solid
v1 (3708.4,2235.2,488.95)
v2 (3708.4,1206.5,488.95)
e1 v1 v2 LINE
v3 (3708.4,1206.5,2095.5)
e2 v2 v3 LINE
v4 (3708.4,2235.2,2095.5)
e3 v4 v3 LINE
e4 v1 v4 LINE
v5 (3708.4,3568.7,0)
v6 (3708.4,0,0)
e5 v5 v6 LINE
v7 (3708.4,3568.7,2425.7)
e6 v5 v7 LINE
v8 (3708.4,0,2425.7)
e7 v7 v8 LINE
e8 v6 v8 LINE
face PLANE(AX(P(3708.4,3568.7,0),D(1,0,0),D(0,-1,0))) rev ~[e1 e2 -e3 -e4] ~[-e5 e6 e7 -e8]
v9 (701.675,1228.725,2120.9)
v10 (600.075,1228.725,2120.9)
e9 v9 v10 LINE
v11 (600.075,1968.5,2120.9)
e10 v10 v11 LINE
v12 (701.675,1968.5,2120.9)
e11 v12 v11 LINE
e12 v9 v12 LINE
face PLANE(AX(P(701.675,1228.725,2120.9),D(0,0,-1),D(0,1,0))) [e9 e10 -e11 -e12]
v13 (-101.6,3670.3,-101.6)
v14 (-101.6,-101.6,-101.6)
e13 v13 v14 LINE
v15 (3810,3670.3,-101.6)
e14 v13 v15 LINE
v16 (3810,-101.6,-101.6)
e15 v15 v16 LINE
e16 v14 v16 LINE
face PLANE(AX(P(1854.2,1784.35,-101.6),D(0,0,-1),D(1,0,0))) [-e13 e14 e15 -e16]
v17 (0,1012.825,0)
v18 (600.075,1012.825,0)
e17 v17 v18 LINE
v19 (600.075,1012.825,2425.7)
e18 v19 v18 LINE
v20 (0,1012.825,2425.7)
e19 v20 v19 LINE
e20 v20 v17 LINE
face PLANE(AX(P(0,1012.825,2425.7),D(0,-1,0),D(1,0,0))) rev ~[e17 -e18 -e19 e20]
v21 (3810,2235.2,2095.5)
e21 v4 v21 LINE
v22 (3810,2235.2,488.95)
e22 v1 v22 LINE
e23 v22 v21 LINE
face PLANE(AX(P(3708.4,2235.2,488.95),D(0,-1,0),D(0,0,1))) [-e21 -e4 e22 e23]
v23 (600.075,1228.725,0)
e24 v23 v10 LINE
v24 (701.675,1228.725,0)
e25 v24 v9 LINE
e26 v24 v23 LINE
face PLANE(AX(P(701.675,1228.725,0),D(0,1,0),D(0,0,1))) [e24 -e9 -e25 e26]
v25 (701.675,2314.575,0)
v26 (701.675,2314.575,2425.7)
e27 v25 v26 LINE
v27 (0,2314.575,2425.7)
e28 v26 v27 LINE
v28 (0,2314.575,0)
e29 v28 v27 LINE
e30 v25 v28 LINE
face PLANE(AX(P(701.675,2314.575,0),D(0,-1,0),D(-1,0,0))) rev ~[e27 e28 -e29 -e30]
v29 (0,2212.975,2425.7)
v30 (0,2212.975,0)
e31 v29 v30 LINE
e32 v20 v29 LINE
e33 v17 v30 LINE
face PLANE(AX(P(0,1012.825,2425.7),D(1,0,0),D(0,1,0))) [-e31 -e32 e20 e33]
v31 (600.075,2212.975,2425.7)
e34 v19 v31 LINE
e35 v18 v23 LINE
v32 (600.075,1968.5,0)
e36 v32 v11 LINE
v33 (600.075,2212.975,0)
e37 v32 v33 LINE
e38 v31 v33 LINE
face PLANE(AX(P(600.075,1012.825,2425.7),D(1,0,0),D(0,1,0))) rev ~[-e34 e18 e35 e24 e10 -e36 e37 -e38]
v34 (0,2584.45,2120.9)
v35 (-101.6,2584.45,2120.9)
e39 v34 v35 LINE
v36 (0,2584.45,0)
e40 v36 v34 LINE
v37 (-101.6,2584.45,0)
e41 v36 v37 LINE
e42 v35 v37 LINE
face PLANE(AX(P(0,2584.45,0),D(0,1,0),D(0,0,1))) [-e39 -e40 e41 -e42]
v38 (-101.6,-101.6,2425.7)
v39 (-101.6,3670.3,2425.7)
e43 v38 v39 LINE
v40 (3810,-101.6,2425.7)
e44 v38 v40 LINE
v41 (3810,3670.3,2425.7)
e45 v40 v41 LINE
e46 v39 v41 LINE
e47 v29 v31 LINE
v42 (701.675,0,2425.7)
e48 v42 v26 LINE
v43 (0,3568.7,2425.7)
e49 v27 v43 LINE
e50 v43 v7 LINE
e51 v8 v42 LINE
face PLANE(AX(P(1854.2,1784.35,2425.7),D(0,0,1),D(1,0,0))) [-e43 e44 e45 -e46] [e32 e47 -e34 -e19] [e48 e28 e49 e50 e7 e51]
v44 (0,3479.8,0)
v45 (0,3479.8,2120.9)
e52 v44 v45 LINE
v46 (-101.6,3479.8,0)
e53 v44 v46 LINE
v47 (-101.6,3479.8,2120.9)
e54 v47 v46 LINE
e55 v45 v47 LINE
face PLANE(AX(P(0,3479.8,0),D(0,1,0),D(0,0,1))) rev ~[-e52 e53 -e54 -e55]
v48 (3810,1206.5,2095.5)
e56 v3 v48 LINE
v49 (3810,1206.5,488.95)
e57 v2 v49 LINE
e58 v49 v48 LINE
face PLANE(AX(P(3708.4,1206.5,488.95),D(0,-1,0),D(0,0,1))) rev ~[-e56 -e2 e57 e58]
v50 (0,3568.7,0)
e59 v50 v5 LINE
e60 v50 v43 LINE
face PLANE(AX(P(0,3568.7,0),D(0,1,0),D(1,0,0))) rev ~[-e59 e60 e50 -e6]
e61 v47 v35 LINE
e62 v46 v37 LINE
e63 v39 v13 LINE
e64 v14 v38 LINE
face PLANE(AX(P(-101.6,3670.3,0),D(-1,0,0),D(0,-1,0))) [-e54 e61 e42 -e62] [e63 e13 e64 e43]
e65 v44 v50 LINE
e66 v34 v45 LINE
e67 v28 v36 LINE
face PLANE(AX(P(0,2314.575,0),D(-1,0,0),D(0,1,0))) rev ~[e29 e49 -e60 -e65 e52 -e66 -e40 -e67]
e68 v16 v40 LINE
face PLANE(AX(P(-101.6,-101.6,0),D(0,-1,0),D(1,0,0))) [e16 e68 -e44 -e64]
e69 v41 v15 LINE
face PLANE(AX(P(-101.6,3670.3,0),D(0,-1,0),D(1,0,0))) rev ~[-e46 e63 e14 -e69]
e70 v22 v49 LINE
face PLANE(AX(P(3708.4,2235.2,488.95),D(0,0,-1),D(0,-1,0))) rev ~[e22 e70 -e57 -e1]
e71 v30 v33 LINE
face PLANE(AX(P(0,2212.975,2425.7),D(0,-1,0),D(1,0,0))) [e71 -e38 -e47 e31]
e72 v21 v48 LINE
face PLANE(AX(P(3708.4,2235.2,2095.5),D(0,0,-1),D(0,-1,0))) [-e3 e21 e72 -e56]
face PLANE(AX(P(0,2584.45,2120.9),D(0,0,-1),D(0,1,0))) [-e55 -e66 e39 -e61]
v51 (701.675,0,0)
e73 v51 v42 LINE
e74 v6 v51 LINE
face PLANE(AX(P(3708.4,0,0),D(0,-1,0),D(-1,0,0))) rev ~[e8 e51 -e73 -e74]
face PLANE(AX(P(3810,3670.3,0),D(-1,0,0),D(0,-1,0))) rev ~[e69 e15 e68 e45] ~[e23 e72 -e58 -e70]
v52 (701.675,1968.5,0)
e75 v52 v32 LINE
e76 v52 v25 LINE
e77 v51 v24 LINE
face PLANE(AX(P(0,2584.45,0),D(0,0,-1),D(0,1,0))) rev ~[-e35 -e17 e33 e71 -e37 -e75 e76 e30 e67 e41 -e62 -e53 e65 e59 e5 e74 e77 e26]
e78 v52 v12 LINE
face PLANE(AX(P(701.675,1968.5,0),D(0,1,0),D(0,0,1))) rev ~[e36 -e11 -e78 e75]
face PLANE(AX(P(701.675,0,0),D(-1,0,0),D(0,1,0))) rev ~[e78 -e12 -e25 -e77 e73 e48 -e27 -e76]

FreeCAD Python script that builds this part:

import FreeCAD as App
import Part
import Sketcher
Q = App.Units.Quantity


def add_polygon(sketch, points):
    """Adds a closed chain of lines whose ends are joined by coincident constraints."""
    first, n = sketch.GeometryCount, len(points)
    for a, b in zip(points, points[1:] + points[:1]):
        sketch.addGeometry(Part.LineSegment(App.Vector(*a, 0), App.Vector(*b, 0)), False)
    for i in range(n):
        sketch.addConstraint(Sketcher.Constraint("Coincident", first + i, 2, first + (i + 1) % n, 1))

doc = App.newDocument("Part")
body = doc.addObject("PartDesign::Body", "Body")

# Sketch on XY plane
sketch1 = body.newObject("Sketcher::SketchObject", "Sketch")
sketch1.AttachmentSupport = (doc.getObject("XY_Plane"), [""])
sketch1.MapMode = "FlatFace"
add_polygon(sketch1, [(-102, 3670), (-102, -102), (3810, -102), (3810, 3670)])  # lines 0-3
add_polygon(sketch1, [(3708, 3569), (3708, 0), (702, 0), (702, 2315), (0, 2315), (0, 3569)])  # lines 4-9
sketch1.addConstraint(Sketcher.Constraint("Vertical", 0))
sketch1.addConstraint(Sketcher.Constraint("Horizontal", 1))
sketch1.addConstraint(Sketcher.Constraint("Vertical", 2))
sketch1.addConstraint(Sketcher.Constraint("Horizontal", 3))
sketch1.addConstraint(Sketcher.Constraint("Vertical", 4))
sketch1.addConstraint(Sketcher.Constraint("Horizontal", 5))
sketch1.addConstraint(Sketcher.Constraint("Vertical", 6))
sketch1.addConstraint(Sketcher.Constraint("Horizontal", 7))
sketch1.addConstraint(Sketcher.Constraint("Vertical", 8))
sketch1.addConstraint(Sketcher.Constraint("Horizontal", 9))
sketch1.addConstraint(Sketcher.Constraint("PointOnObject", 4, 2, -1))
sketch1.addConstraint(Sketcher.Constraint("PointOnObject", 7, 2, -2))
sketch1.addConstraint(Sketcher.Constraint("DistanceX", 1, 1, 1, 2, Q("154 in")))
sketch1.addConstraint(Sketcher.Constraint("DistanceX", 9, 1, 9, 2, Q("146 in")))
sketch1.addConstraint(Sketcher.Constraint("DistanceY", 0, 2, 0, 1, Q("148.5 in")))
sketch1.addConstraint(Sketcher.Constraint("DistanceY", 4, 2, 4, 1, Q("140.5 in")))
sketch1.addConstraint(Sketcher.Constraint("DistanceX", 0, 2, -1, 1, Q("4 in")))
sketch1.addConstraint(Sketcher.Constraint("DistanceY", 0, 2, -1, 1, Q("4 in")))
sketch1.addConstraint(Sketcher.Constraint("DistanceX", 5, 2, 5, 1, Q("118.375 in")))
sketch1.addConstraint(Sketcher.Constraint("DistanceY", 6, 1, 6, 2, Q("91.125 in")))
pad1 = body.newObject("PartDesign::Pad", "Pad")
pad1.Profile = sketch1
pad1.Length = Q("95.5 in")

# Sketch on XY plane
sketch2 = body.newObject("Sketcher::SketchObject", "Sketch001")
sketch2.AttachmentSupport = (doc.getObject("XY_Plane"), [""])
sketch2.MapMode = "FlatFace"
add_polygon(sketch2, [(-102, -102), (-102, 3670), (3810, 3670), (3810, -102)])  # lines 0-3
sketch2.addConstraint(Sketcher.Constraint("Vertical", 0))
sketch2.addConstraint(Sketcher.Constraint("Horizontal", 1))
sketch2.addConstraint(Sketcher.Constraint("Vertical", 2))
sketch2.addConstraint(Sketcher.Constraint("Horizontal", 3))
sketch2.addConstraint(Sketcher.Constraint("DistanceX", 1, 1, 1, 2, Q("154 in")))
sketch2.addConstraint(Sketcher.Constraint("DistanceY", 0, 1, 0, 2, Q("148.5 in")))
sketch2.addConstraint(Sketcher.Constraint("DistanceX", 0, 2, -1, 1, Q("4 in")))
sketch2.addConstraint(Sketcher.Constraint("DistanceY", 2, 2, -1, 1, Q("4 in")))
pad2 = body.newObject("PartDesign::Pad", "Pad001")
pad2.Profile = sketch2
pad2.Length = Q("4 in")
pad2.Reversed = True

# Sketch on YZ plane
sketch3 = body.newObject("Sketcher::SketchObject", "Sketch002")
sketch3.AttachmentSupport = (doc.getObject("YZ_Plane"), [""])
sketch3.MapMode = "FlatFace"
add_polygon(sketch3, [(2584, 2121), (2584, 0), (3480, 0), (3480, 2121)])  # lines 0-3
sketch3.addConstraint(Sketcher.Constraint("Vertical", 0))
sketch3.addConstraint(Sketcher.Constraint("Horizontal", 1))
sketch3.addConstraint(Sketcher.Constraint("Vertical", 2))
sketch3.addConstraint(Sketcher.Constraint("Horizontal", 3))
sketch3.addConstraint(Sketcher.Constraint("PointOnObject", 0, 2, -1))
sketch3.addConstraint(Sketcher.Constraint("DistanceY", 0, 2, 0, 1, Q("83.5 in")))
sketch3.addConstraint(Sketcher.Constraint("DistanceX", -1, 1, 1, 2, Q("137 in")))
sketch3.addConstraint(Sketcher.Constraint("DistanceX", 1, 1, 1, 2, Q("35.25 in")))
pocket1 = body.newObject("PartDesign::Pocket", "Pocket")
pocket1.Profile = sketch3
pocket1.Type = "ThroughAll"

# Sketch on YZ plane
sketch4 = body.newObject("Sketcher::SketchObject", "Sketch003")
sketch4.AttachmentSupport = (doc.getObject("YZ_Plane"), [""])
sketch4.MapMode = "FlatFace"
sketch4.AttachmentOffset = App.Placement(App.Vector(0, 0, 146 * 25.4), App.Rotation())
add_polygon(sketch4, [(2235, 2096), (2235, 489), (1206, 489), (1206, 2096)])  # lines 0-3
sketch4.addConstraint(Sketcher.Constraint("Vertical", 0))
sketch4.addConstraint(Sketcher.Constraint("Horizontal", 1))
sketch4.addConstraint(Sketcher.Constraint("Vertical", 2))
sketch4.addConstraint(Sketcher.Constraint("Horizontal", 3))
sketch4.addConstraint(Sketcher.Constraint("DistanceX", 1, 2, 1, 1, Q("40.5 in")))
sketch4.addConstraint(Sketcher.Constraint("DistanceX", -1, 1, 0, 2, Q("88 in")))
sketch4.addConstraint(Sketcher.Constraint("DistanceY", 0, 2, 0, 1, Q("63.25 in")))
sketch4.addConstraint(Sketcher.Constraint("DistanceY", -1, 1, 2, 2, Q("82.5 in")))
pocket2 = body.newObject("PartDesign::Pocket", "Pocket001")
pocket2.Profile = sketch4
pocket2.Type = "ThroughAll"
pocket2.Reversed = True

# Sketch on YZ plane
sketch5 = body.newObject("Sketcher::SketchObject", "Sketch004")
sketch5.AttachmentSupport = (doc.getObject("YZ_Plane"), [""])
sketch5.MapMode = "FlatFace"
sketch5.AttachmentOffset = App.Placement(App.Vector(0, 0, 27.625 * 25.4), App.Rotation())
add_polygon(sketch5, [(1229, 2121), (1229, 0), (1968, 0), (1968, 2121)])  # lines 0-3
sketch5.addConstraint(Sketcher.Constraint("Vertical", 0))
sketch5.addConstraint(Sketcher.Constraint("Horizontal", 1))
sketch5.addConstraint(Sketcher.Constraint("Vertical", 2))
sketch5.addConstraint(Sketcher.Constraint("Horizontal", 3))
sketch5.addConstraint(Sketcher.Constraint("PointOnObject", 0, 2, -1))
sketch5.addConstraint(Sketcher.Constraint("DistanceY", 0, 2, 0, 1, Q("83.5 in")))
sketch5.addConstraint(Sketcher.Constraint("DistanceX", -1, 1, 1, 2, Q("77.5 in")))
sketch5.addConstraint(Sketcher.Constraint("DistanceX", 1, 1, 1, 2, Q("29.125 in")))
pocket3 = body.newObject("PartDesign::Pocket", "Pocket002")
pocket3.Profile = sketch5
pocket3.Length = Q("4 in")

# Sketch on XY plane
sketch6 = body.newObject("Sketcher::SketchObject", "Sketch005")
sketch6.AttachmentSupport = (doc.getObject("XY_Plane"), [""])
sketch6.MapMode = "FlatFace"
sketch6.AttachmentOffset = App.Placement(App.Vector(0, 0, 95.5 * 25.4), App.Rotation())
add_polygon(sketch6, [(0, 2213), (0, 1013), (600, 1013), (600, 2213)])  # lines 0-3
sketch6.addConstraint(Sketcher.Constraint("Vertical", 0))
sketch6.addConstraint(Sketcher.Constraint("Horizontal", 1))
sketch6.addConstraint(Sketcher.Constraint("Vertical", 2))
sketch6.addConstraint(Sketcher.Constraint("Horizontal", 3))
sketch6.addConstraint(Sketcher.Constraint("PointOnObject", 0, 2, -2))
sketch6.addConstraint(Sketcher.Constraint("DistanceY", 0, 2, 0, 1, Q("47.25 in")))
sketch6.addConstraint(Sketcher.Constraint("DistanceX", 1, 1, 1, 2, Q("23.625 in")))
sketch6.addConstraint(Sketcher.Constraint("DistanceY", -1, 1, 0, 2, Q("39.875 in")))
pocket4 = body.newObject("PartDesign::Pocket", "Pocket003")
pocket4.Profile = sketch6
pocket4.Length = Q("95.5 in")

doc.recompute()
